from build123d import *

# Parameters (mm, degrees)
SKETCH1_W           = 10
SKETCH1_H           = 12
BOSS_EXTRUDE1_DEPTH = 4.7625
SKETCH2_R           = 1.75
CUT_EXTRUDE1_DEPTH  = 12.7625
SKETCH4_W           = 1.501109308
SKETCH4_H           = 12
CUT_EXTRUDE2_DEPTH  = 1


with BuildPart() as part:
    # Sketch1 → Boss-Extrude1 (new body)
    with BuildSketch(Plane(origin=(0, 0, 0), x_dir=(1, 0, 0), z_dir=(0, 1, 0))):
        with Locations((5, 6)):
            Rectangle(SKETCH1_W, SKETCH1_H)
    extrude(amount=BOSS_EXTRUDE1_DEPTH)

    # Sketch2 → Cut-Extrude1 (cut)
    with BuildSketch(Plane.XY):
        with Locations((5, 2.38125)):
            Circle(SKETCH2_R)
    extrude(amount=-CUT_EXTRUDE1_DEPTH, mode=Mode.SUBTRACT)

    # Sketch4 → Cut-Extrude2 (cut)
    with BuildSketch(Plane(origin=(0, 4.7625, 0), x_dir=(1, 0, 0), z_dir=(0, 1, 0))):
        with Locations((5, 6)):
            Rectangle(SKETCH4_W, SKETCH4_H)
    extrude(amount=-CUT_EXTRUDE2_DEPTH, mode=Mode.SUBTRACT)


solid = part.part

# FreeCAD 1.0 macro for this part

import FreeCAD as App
import Part
import Sketcher


def add_polygon(sketch, points):
    """Adds a closed chain of lines whose ends are joined by coincident constraints."""
    first, n = sketch.GeometryCount, len(points)
    for a, b in zip(points, points[1:] + points[:1]):
        sketch.addGeometry(Part.LineSegment(App.Vector(*a, 0), App.Vector(*b, 0)), False)
    for i in range(n):
        sketch.addConstraint(Sketcher.Constraint("Coincident", first + i, 2, first + (i + 1) % n, 1))

doc = App.newDocument("Part")
params = doc.addObject("Spreadsheet::Sheet", "Params")
for row, (alias, value) in enumerate([
    ("sketch1_width", "10 mm"),
    ("sketch1_height", "12 mm"),
    ("pad1_length", "4.7625 mm"),
    ("sketch2_diameter", "3.5 mm"),
    ("pocket1_length", "12.7625 mm"),
    ("sketch3_height", "12 mm"),
    ("pocket2_length", "1 mm"),
], start=1):
    params.set(f"A{row}", alias)
    params.set(f"B{row}", "=" + value)
    params.setAlias(f"B{row}", alias)

body = doc.addObject("PartDesign::Body", "Body")

# Sketch on XZ plane
sketch1 = doc.addObject("Sketcher::SketchObject", "Sketch")
body.addObject(sketch1)
sketch1.AttachmentSupport = (doc.XZ_Plane, [""])
sketch1.MapMode = "FlatFace"
add_polygon(sketch1, [(0, -12), (0, 0), (10, 0), (10, -12)])  # lines 0-3
sketch1.addConstraint([
    Sketcher.Constraint("Vertical", 0),
    Sketcher.Constraint("Horizontal", 1),
    Sketcher.Constraint("Vertical", 2),
    Sketcher.Constraint("Horizontal", 3),
    Sketcher.Constraint("Coincident", 0, 2, -1, 1),
    Sketcher.Constraint("DistanceX", 1, 1, 1, 2, 10.0),
    Sketcher.Constraint("DistanceY", 0, 1, 0, 2, 12.0),
])
sketch1.setExpression("Constraints[9]", "Params.sketch1_width")
sketch1.setExpression("Constraints[10]", "Params.sketch1_height")
pad1 = doc.addObject("PartDesign::Pad", "Pad")
body.addObject(pad1)
pad1.Profile = sketch1
pad1.setExpression("Length", "Params.pad1_length")
pad1.Reversed = True

# Sketch on XY plane
sketch2 = doc.addObject("Sketcher::SketchObject", "Sketch001")
body.addObject(sketch2)
sketch2.AttachmentSupport = (doc.XY_Plane, [""])
sketch2.MapMode = "FlatFace"
sketch2.addGeometry(Part.Circle(App.Vector(5, 2.4, 0), App.Vector(0, 0, 1), 1.8), False)
sketch2.addConstraint([
    Sketcher.Constraint("Diameter", 0, 3.5),
    Sketcher.Constraint("DistanceX", -1, 1, 0, 3, 5.0),
    Sketcher.Constraint("DistanceY", -1, 1, 0, 3, 2.38125),
])
sketch2.setExpression("Constraints[0]", "Params.sketch2_diameter")
pocket1 = doc.addObject("PartDesign::Pocket", "Pocket")
body.addObject(pocket1)
pocket1.Profile = sketch2
pocket1.setExpression("Length", "Params.pocket1_length")

# Sketch on XZ plane
sketch3 = doc.addObject("Sketcher::SketchObject", "Sketch002")
body.addObject(sketch3)
sketch3.AttachmentSupport = (doc.XZ_Plane, [""])
sketch3.MapMode = "FlatFace"
sketch3.AttachmentOffset = App.Placement(App.Vector(0, 0, -4.7625), App.Rotation())
add_polygon(sketch3, [(4.2, -12), (4.2, 0), (5.8, 0), (5.8, -12)])  # lines 0-3
sketch3.addConstraint([
    Sketcher.Constraint("Vertical", 0),
    Sketcher.Constraint("Horizontal", 1),
    Sketcher.Constraint("Vertical", 2),
    Sketcher.Constraint("Horizontal", 3),
    Sketcher.Constraint("PointOnObject", 0, 2, -1),
    Sketcher.Constraint("DistanceY", 0, 1, 0, 2, 12.0),
    Sketcher.Constraint("DistanceX", 1, 1, 1, 2, 1.501109),
    Sketcher.Constraint("DistanceX", -1, 1, 0, 2, 4.249445),
])
sketch3.setExpression("Constraints[9]", "Params.sketch3_height")
pocket2 = doc.addObject("PartDesign::Pocket", "Pocket001")
body.addObject(pocket2)
pocket2.Profile = sketch3
pocket2.setExpression("Length", "Params.pocket2_length")
pocket2.Reversed = True

doc.recompute()
